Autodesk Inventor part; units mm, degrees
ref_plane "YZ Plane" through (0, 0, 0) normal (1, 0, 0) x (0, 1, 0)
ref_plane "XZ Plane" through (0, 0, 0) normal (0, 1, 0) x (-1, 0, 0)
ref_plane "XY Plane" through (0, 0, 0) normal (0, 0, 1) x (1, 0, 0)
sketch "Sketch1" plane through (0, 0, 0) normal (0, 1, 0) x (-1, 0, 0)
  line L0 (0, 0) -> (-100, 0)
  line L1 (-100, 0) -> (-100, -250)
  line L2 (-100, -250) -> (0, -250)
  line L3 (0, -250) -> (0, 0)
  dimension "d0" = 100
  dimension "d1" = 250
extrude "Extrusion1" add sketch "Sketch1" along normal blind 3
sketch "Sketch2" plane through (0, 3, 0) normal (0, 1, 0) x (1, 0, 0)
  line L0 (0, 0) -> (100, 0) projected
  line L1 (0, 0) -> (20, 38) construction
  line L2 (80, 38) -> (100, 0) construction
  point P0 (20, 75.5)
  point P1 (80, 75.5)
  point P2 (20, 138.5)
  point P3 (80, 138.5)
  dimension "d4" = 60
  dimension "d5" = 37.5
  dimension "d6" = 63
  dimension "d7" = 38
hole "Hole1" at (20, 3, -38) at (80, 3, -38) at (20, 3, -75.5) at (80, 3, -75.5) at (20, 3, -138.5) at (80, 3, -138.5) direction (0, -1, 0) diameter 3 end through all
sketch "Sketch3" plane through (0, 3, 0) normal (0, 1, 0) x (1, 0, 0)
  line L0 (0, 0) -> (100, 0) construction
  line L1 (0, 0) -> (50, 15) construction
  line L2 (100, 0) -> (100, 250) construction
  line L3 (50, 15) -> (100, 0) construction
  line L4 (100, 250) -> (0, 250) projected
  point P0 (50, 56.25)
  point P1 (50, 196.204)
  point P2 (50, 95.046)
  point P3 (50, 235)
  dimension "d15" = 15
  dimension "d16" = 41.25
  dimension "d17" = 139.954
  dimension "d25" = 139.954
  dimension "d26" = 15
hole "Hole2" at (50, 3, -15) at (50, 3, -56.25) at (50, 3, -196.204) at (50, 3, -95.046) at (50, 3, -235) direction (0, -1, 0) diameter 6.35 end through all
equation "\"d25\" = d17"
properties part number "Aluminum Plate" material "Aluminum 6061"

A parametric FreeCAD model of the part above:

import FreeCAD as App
import Part
import Sketcher
from FreeCAD import Vector
Q = App.Units.Quantity


def add_polygon(sketch, points):
    """Adds a closed chain of lines whose ends are joined by coincident constraints."""
    first, n = sketch.GeometryCount, len(points)
    for a, b in zip(points, points[1:] + points[:1]):
        sketch.addGeometry(Part.LineSegment(App.Vector(*a, 0), App.Vector(*b, 0)), False)
    for i in range(n):
        sketch.addConstraint(Sketcher.Constraint("Coincident", first + i, 2, first + (i + 1) % n, 1))

doc = App.newDocument("Part")
body = doc.addObject("PartDesign::Body", "Body")

# Sketch on XZ plane
sketch1 = body.newObject("Sketcher::SketchObject", "Sketch")
sketch1.AttachmentSupport = (doc.getObject("XZ_Plane"), [""])
sketch1.MapMode = "FlatFace"
add_polygon(sketch1, [(0, -250), (0, 0), (100, 0), (100, -250)])  # lines 0-3
sketch1.addConstraint(Sketcher.Constraint("Vertical", 0))
sketch1.addConstraint(Sketcher.Constraint("Horizontal", 1))
sketch1.addConstraint(Sketcher.Constraint("Vertical", 2))
sketch1.addConstraint(Sketcher.Constraint("Horizontal", 3))
sketch1.addConstraint(Sketcher.Constraint("Coincident", 0, 2, -1, 1))
sketch1.addConstraint(Sketcher.Constraint("DistanceX", 1, 1, 1, 2, Q("3.937 in")))
sketch1.addConstraint(Sketcher.Constraint("DistanceY", 0, 1, 0, 2, 250.0))
pad1 = body.newObject("PartDesign::Pad", "Pad")
pad1.Profile = sketch1
pad1.Length = Q("0.1181102 in")
pad1.Reversed = True

# Sketch on XZ plane
sketch2 = body.newObject("Sketcher::SketchObject", "Sketch001")
sketch2.AttachmentSupport = (doc.getObject("XZ_Plane"), [""])
sketch2.MapMode = "FlatFace"
sketch2.AttachmentOffset = App.Placement(Vector(0, 0, -0.1181102 * 25.4), App.Rotation())
sketch2.addGeometry(Part.Circle(Vector(20, -38, 0), Vector(0, 0, 1), 1.5), False)
sketch2.addGeometry(Part.Circle(Vector(80, -38, 0), Vector(0, 0, 1), 1.5), False)
sketch2.addGeometry(Part.Circle(Vector(20, -75.5, 0), Vector(0, 0, 1), 1.5), False)
sketch2.addGeometry(Part.Circle(Vector(80, -75.5, 0), Vector(0, 0, 1), 1.5), False)
sketch2.addGeometry(Part.Circle(Vector(20, -138.5, 0), Vector(0, 0, 1), 1.5), False)
sketch2.addGeometry(Part.Circle(Vector(80, -138.5, 0), Vector(0, 0, 1), 1.5), False)
sketch2.addConstraint(Sketcher.Constraint("Equal", 0, 1))
sketch2.addConstraint(Sketcher.Constraint("Equal", 1, 2))
sketch2.addConstraint(Sketcher.Constraint("Equal", 2, 3))
sketch2.addConstraint(Sketcher.Constraint("Equal", 3, 4))
sketch2.addConstraint(Sketcher.Constraint("Equal", 4, 5))
sketch2.addConstraint(Sketcher.Constraint("Horizontal", 0, 3, 1, 3))
sketch2.addConstraint(Sketcher.Constraint("Horizontal", 2, 3, 3, 3))
sketch2.addConstraint(Sketcher.Constraint("Horizontal", 4, 3, 5, 3))
sketch2.addConstraint(Sketcher.Constraint("Vertical", 0, 3, 2, 3))
sketch2.addConstraint(Sketcher.Constraint("Vertical", 1, 3, 3, 3))
sketch2.addConstraint(Sketcher.Constraint("Vertical", 2, 3, 4, 3))
sketch2.addConstraint(Sketcher.Constraint("Vertical", 3, 3, 5, 3))
sketch2.addConstraint(Sketcher.Constraint("Diameter", 0, Q("0.1181 in")))
sketch2.addConstraint(Sketcher.Constraint("DistanceX", -1, 1, 0, 3, Q("0.7874 in")))
sketch2.addConstraint(Sketcher.Constraint("DistanceX", -1, 1, 1, 3, Q("3.1496 in")))
sketch2.addConstraint(Sketcher.Constraint("DistanceY", 4, 3, 0, 3, Q("3.9567 in")))
sketch2.addConstraint(Sketcher.Constraint("DistanceY", 0, 3, -1, 1, 38.0))
sketch2.addConstraint(Sketcher.Constraint("DistanceY", 2, 3, -1, 1, 75.5))
doc.recompute()
hole = body.newObject("PartDesign::Hole", "Hole")
hole.Profile = sketch2
hole.ThreadType = "None"
hole.Diameter = Q("0.1181102 in")
hole.DepthType = "ThroughAll"
hole.Reversed = True

# Sketch on XZ plane
sketch3 = body.newObject("Sketcher::SketchObject", "Sketch002")
sketch3.AttachmentSupport = (doc.getObject("XZ_Plane"), [""])
sketch3.MapMode = "FlatFace"
sketch3.AttachmentOffset = App.Placement(Vector(0, 0, -0.1181102 * 25.4), App.Rotation())
sketch3.addGeometry(Part.Circle(Vector(50, -15, 0), Vector(0, 0, 1), 3.2), False)
sketch3.addGeometry(Part.Circle(Vector(50, -56.2, 0), Vector(0, 0, 1), 3.2), False)
sketch3.addGeometry(Part.Circle(Vector(50, -196.2, 0), Vector(0, 0, 1), 3.2), False)
sketch3.addGeometry(Part.Circle(Vector(50, -95, 0), Vector(0, 0, 1), 3.2), False)
sketch3.addGeometry(Part.Circle(Vector(50, -235, 0), Vector(0, 0, 1), 3.2), False)
sketch3.addConstraint(Sketcher.Constraint("Equal", 0, 1))
sketch3.addConstraint(Sketcher.Constraint("Equal", 1, 2))
sketch3.addConstraint(Sketcher.Constraint("Equal", 2, 3))
sketch3.addConstraint(Sketcher.Constraint("Equal", 3, 4))
sketch3.addConstraint(Sketcher.Constraint("Vertical", 0, 3, 1, 3))
sketch3.addConstraint(Sketcher.Constraint("Vertical", 1, 3, 2, 3))
sketch3.addConstraint(Sketcher.Constraint("Vertical", 2, 3, 3, 3))
sketch3.addConstraint(Sketcher.Constraint("Vertical", 3, 3, 4, 3))
sketch3.addConstraint(Sketcher.Constraint("Diameter", 0, Q("0.25 in")))
sketch3.addConstraint(Sketcher.Constraint("DistanceY", 2, 3, 1, 3, Q("5.51 in")))
sketch3.addConstraint(Sketcher.Constraint("DistanceY", 4, 3, 3, 3, Q("5.51 in")))
sketch3.addConstraint(Sketcher.Constraint("DistanceX", -1, 1, 0, 3, Q("1.9685 in")))
sketch3.addConstraint(Sketcher.Constraint("DistanceY", 3, 3, 1, 3, Q("1.5274 in")))
sketch3.addConstraint(Sketcher.Constraint("DistanceY", 0, 3, -1, 1, 15.0))
sketch3.addConstraint(Sketcher.Constraint("DistanceY", 1, 3, -1, 1, 56.25))
doc.recompute()
hole2 = body.newObject("PartDesign::Hole", "Hole001")
hole2.Profile = sketch3
hole2.ThreadType = "None"
hole2.Diameter = Q("0.25 in")
hole2.DepthType = "ThroughAll"
hole2.Reversed = True

doc.recompute()
